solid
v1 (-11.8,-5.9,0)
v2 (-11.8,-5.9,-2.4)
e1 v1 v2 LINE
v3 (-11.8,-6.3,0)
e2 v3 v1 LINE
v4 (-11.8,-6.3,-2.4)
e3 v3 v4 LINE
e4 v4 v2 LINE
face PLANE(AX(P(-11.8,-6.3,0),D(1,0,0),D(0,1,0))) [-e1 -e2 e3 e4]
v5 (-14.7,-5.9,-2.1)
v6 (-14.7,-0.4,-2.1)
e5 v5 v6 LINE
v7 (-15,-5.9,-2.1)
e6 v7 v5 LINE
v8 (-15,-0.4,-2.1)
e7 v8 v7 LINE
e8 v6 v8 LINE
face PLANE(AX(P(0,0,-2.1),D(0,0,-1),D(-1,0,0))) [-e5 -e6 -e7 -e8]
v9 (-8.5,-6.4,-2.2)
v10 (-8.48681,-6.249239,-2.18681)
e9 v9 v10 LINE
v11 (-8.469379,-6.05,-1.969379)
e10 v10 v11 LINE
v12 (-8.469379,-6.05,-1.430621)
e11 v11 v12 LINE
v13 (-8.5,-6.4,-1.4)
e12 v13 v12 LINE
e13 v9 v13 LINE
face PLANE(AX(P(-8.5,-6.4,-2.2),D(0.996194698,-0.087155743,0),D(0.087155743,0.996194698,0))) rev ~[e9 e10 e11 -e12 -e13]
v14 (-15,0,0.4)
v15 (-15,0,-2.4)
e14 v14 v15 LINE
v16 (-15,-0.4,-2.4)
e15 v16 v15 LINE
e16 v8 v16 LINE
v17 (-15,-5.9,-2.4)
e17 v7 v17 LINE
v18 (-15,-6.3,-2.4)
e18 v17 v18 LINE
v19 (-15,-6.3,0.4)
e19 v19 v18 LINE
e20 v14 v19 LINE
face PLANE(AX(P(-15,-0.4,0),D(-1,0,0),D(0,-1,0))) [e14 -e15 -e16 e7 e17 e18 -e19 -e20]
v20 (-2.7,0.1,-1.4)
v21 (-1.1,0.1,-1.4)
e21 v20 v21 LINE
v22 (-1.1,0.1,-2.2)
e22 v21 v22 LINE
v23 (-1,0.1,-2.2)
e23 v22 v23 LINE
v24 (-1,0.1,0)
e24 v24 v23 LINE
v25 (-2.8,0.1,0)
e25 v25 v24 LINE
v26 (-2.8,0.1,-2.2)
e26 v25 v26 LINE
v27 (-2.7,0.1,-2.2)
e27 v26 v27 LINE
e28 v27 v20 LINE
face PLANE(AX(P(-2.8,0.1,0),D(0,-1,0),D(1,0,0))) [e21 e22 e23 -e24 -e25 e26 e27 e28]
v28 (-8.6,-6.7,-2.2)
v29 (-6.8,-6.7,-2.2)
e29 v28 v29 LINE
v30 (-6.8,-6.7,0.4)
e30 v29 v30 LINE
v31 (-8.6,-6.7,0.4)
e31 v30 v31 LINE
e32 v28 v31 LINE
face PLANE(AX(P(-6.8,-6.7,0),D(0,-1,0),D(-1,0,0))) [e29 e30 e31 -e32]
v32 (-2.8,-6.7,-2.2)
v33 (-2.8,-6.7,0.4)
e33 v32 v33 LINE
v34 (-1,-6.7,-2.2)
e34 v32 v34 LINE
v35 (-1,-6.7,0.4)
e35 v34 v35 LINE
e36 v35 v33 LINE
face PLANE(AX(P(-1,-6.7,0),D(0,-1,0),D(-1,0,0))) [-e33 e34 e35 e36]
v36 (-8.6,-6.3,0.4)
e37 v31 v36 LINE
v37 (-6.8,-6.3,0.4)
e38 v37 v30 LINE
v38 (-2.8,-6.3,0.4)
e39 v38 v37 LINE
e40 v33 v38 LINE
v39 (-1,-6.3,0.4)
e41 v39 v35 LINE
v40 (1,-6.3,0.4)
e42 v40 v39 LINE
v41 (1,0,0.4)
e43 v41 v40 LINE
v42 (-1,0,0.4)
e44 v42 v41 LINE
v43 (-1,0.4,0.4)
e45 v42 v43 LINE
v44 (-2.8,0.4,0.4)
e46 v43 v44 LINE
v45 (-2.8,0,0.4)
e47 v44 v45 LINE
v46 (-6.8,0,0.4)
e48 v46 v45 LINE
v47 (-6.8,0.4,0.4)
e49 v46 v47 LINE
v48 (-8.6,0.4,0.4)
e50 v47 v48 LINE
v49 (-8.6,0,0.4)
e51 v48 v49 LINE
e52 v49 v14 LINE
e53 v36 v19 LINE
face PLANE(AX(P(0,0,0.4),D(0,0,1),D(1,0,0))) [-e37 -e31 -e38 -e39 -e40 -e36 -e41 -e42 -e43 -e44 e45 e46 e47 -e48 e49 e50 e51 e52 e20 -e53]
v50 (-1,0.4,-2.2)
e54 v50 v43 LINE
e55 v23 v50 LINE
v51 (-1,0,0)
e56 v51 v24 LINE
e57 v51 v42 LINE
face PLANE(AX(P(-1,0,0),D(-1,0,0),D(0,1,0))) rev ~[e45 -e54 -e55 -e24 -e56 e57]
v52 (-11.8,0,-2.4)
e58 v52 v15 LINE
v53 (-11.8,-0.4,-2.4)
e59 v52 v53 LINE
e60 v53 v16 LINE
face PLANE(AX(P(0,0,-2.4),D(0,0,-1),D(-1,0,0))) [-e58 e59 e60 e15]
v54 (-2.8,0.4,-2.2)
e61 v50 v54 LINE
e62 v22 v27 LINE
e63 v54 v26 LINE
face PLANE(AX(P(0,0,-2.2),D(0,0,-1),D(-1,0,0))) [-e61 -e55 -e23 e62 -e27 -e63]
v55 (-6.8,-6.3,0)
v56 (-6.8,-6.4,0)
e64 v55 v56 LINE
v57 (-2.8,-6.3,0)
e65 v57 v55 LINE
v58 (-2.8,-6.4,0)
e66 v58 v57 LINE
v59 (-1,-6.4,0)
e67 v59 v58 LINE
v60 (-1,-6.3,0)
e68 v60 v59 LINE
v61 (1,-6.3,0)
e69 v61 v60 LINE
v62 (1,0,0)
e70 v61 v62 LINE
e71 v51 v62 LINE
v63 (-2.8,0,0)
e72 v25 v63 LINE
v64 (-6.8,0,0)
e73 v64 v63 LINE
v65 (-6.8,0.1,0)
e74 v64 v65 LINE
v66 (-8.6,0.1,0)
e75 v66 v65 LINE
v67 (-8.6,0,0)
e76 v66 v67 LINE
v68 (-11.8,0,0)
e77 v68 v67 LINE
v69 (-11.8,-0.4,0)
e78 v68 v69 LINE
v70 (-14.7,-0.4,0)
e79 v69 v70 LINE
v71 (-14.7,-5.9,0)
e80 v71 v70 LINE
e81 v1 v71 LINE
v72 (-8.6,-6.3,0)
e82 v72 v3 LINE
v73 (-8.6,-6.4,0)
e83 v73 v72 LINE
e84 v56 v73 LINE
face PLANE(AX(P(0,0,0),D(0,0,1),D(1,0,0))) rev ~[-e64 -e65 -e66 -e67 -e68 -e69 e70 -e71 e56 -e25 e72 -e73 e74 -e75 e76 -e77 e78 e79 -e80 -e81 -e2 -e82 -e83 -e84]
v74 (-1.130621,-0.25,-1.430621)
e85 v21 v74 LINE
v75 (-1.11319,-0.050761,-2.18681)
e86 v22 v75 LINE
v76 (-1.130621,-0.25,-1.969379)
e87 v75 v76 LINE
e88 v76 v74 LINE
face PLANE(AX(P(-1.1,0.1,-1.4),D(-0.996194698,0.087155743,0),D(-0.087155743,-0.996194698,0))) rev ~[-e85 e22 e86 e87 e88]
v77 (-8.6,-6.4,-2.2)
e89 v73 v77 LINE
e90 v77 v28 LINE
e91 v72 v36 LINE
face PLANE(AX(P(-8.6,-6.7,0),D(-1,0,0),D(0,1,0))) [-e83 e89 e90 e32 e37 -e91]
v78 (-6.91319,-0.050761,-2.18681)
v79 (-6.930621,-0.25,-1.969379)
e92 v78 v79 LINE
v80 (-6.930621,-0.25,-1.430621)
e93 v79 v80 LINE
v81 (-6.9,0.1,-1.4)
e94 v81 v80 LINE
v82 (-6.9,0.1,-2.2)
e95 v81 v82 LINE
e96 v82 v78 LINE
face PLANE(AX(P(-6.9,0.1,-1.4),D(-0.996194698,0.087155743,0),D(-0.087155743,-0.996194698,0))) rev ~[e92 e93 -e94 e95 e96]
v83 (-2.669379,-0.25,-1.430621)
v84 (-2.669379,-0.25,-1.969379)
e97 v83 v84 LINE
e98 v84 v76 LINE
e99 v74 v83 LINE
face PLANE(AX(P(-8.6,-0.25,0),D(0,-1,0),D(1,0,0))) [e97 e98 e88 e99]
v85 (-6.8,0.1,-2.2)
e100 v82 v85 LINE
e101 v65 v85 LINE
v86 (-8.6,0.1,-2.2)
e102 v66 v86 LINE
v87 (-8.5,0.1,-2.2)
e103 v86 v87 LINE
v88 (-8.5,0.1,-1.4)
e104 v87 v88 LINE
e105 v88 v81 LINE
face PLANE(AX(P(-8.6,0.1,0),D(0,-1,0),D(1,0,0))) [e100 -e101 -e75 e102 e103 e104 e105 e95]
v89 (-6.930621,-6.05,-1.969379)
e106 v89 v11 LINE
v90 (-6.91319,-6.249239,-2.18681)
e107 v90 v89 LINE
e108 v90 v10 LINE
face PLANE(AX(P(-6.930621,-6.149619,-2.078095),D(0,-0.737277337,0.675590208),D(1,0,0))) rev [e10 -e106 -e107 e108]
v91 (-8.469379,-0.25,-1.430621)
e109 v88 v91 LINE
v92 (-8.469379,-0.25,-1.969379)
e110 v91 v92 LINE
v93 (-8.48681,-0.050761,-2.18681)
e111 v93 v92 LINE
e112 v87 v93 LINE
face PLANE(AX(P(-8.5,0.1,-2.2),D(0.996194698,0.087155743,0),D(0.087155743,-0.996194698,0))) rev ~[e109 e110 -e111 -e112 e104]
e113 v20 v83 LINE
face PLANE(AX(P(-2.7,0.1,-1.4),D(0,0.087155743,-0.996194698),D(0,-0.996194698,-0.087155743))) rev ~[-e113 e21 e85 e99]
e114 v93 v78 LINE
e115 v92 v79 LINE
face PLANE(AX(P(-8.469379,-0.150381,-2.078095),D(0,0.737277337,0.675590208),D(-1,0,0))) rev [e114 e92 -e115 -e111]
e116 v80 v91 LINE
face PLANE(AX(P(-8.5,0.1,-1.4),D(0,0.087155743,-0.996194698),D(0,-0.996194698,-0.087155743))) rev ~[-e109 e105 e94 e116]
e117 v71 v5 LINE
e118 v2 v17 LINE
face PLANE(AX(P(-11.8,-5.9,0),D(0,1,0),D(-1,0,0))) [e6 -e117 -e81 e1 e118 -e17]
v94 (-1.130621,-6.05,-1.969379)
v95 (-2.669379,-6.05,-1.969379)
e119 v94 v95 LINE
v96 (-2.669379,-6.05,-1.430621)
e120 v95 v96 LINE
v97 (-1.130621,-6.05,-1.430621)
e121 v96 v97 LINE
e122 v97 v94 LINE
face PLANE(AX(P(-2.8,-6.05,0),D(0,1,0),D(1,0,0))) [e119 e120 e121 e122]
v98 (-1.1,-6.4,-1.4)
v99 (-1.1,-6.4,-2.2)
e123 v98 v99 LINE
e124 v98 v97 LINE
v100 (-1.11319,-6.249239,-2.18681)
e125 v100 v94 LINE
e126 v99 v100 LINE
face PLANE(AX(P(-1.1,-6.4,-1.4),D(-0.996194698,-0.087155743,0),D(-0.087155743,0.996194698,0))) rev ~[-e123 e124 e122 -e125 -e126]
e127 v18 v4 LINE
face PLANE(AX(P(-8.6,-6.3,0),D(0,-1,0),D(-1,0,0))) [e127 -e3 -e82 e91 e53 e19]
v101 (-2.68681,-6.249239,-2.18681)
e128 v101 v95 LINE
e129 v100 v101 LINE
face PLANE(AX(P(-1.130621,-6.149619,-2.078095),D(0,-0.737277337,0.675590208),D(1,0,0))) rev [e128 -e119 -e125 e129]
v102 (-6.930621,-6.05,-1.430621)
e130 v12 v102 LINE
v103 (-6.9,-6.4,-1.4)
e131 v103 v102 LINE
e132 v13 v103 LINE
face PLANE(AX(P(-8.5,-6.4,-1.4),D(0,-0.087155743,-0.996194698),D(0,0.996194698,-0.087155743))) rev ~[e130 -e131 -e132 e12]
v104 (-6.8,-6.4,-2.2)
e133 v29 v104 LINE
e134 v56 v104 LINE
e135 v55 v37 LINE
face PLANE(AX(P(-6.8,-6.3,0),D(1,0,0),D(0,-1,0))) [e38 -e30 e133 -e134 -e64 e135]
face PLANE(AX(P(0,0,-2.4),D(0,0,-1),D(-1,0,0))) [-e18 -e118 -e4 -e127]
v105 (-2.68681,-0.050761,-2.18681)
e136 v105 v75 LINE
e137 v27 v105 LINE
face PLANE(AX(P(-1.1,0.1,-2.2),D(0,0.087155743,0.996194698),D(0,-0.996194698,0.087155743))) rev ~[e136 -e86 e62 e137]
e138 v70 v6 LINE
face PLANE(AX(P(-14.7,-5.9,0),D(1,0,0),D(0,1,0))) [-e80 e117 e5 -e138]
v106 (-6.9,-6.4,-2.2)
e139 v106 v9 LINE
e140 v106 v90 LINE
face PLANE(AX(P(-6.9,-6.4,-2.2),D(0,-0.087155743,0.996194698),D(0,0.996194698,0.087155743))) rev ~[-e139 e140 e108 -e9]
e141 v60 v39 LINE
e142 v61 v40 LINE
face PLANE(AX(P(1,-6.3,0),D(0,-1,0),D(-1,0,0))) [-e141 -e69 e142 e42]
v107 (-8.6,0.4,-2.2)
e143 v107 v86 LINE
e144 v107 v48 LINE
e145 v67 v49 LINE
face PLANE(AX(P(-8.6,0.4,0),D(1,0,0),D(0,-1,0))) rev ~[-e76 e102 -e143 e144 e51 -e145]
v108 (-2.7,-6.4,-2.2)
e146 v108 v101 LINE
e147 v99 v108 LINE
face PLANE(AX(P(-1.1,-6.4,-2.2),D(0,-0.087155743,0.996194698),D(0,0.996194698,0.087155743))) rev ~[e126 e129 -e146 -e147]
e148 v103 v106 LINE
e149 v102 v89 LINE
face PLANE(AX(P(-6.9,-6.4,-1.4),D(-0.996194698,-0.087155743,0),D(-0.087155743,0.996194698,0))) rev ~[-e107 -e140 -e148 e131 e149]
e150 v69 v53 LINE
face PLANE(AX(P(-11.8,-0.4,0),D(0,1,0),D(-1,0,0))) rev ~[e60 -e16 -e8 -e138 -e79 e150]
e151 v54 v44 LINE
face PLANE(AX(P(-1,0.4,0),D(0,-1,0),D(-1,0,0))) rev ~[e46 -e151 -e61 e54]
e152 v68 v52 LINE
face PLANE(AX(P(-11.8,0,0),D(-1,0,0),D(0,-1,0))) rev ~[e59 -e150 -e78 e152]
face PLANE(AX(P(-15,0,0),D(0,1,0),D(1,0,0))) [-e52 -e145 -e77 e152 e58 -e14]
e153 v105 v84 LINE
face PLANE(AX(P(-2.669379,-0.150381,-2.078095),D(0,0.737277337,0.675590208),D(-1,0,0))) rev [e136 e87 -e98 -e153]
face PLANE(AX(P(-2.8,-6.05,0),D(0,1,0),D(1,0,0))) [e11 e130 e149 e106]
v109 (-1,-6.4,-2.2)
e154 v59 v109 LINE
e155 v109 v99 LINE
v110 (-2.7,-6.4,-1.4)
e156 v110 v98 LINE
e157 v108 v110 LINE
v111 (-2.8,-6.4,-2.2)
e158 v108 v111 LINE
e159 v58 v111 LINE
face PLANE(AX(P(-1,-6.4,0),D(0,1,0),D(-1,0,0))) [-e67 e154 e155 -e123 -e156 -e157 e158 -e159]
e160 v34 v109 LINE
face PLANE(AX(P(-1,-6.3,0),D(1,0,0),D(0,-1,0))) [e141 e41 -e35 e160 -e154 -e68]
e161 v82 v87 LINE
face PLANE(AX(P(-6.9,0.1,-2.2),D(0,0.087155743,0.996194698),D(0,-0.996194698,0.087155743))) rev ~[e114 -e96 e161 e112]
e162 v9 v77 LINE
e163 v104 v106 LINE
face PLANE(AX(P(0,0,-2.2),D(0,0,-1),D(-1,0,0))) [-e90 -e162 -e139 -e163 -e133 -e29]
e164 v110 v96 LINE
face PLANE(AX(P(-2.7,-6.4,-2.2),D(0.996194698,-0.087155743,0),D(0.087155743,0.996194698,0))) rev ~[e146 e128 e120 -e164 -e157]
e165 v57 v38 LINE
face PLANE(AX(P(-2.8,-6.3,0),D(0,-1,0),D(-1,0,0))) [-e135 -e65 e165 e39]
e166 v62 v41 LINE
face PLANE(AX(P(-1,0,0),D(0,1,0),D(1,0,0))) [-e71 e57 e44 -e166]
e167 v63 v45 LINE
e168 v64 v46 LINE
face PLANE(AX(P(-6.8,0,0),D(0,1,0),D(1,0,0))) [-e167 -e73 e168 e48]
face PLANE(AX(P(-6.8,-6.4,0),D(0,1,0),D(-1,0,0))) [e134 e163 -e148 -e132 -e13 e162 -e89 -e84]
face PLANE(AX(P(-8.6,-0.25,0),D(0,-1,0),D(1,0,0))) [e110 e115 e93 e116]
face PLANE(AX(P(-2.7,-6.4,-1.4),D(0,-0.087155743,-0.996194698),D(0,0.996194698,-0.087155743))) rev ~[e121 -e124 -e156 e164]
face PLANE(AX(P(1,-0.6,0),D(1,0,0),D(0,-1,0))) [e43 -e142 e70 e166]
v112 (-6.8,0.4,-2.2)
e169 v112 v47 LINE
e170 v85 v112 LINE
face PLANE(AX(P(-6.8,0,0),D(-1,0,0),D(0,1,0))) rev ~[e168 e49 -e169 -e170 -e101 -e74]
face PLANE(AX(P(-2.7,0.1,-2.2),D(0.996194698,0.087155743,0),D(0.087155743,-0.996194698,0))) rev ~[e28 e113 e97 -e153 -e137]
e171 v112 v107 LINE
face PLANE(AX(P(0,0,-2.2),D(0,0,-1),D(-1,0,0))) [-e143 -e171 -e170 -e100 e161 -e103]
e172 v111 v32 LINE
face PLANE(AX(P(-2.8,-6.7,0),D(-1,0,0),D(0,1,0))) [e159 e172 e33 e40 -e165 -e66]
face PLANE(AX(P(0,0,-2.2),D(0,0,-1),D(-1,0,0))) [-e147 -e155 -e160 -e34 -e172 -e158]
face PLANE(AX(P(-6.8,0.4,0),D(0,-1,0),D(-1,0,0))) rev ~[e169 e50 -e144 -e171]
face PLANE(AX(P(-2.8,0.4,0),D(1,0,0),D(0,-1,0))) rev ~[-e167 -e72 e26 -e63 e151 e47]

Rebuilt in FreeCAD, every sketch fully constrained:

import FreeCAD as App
import Part
import Sketcher


def edges_at(feature, points):
    """Names of the edges that pass closest to the given points."""
    edges = feature.Shape.Edges
    near = lambda p: min(range(len(edges)), key=lambda i: edges[i].distToShape(Part.Vertex(*p))[0])
    return sorted({f"Edge{near(p) + 1}" for p in points})

doc = App.newDocument("Part")
params = doc.addObject("Spreadsheet::Sheet", "Params")
for row, (alias, value) in enumerate([
    ("sketch1_height", "0.4 mm"),
    ("sketch1_width", "2 mm"),
    ("sketch1_width2", "4 mm"),
    ("sketch1_width3", "1.8 mm"),
    ("sketch1_width4", "6.4 mm"),
    ("pad1_length", "0.4 mm"),
    ("sketch2_width", "1.8 mm"),
    ("sketch2_height", "0.3 mm"),
    ("pad2_length", "2.2 mm"),
    ("sketch3_width", "1.6 mm"),
    ("sketch3_height", "0.8 mm"),
    ("pad3_length", "0.35 mm"),
    ("pad3_taper", "-5 deg"),
    ("sketch4_width", "1.6 mm"),
    ("sketch4_height", "0.8 mm"),
    ("pad4_length", "0.35 mm"),
    ("pad4_taper", "-5 deg"),
    ("chamfer_size", "0.2 mm"),
    ("sketch5_width", "3.2 mm"),
    ("sketch5_height", "0.4 mm"),
    ("pad5_length", "2.4 mm"),
    ("sketch6_width", "0.3 mm"),
    ("sketch6_height", "5.5 mm"),
    ("pad6_length", "2.1 mm"),
], start=1):
    params.set(f"A{row}", alias)
    params.set(f"B{row}", "=" + value)
    params.setAlias(f"B{row}", alias)

body = doc.addObject("PartDesign::Body", "Body")

sketch1 = doc.addObject("Sketcher::SketchObject", "Sketch")
body.addObject(sketch1)
sketch1.AttachmentSupport = (doc.XY_Plane, [""])
sketch1.MapMode = "FlatFace"
sketch1.addGeometry(Part.LineSegment(App.Vector(1, 0, 0), App.Vector(-1, 0, 0)), False)
sketch1.addGeometry(Part.LineSegment(App.Vector(-1, 0, 0), App.Vector(-1, 0.4, 0)), False)
sketch1.addGeometry(Part.LineSegment(App.Vector(-1, 0.4, 0), App.Vector(-2.8, 0.4, 0)), False)
sketch1.addGeometry(Part.LineSegment(App.Vector(-2.8, 0.4, 0), App.Vector(-2.8, 0, 0)), False)
sketch1.addGeometry(Part.LineSegment(App.Vector(-2.8, 0, 0), App.Vector(-6.8, 0, 0)), False)
sketch1.addGeometry(Part.LineSegment(App.Vector(-6.8, 0, 0), App.Vector(-6.8, 0.4, 0)), False)
sketch1.addGeometry(Part.LineSegment(App.Vector(-6.8, 0.4, 0), App.Vector(-8.6, 0.4, 0)), False)
sketch1.addGeometry(Part.LineSegment(App.Vector(-8.6, 0.4, 0), App.Vector(-8.6, 0, 0)), False)
sketch1.addGeometry(Part.LineSegment(App.Vector(-8.6, 0, 0), App.Vector(-15, 0, 0)), False)
sketch1.addGeometry(Part.LineSegment(App.Vector(-15, 0, 0), App.Vector(-15, -6.3, 0)), False)
sketch1.addGeometry(Part.LineSegment(App.Vector(-15, -6.3, 0), App.Vector(-8.6, -6.3, 0)), False)
sketch1.addGeometry(Part.LineSegment(App.Vector(-8.6, -6.3, 0), App.Vector(-8.6, -6.7, 0)), False)
sketch1.addGeometry(Part.LineSegment(App.Vector(-8.6, -6.7, 0), App.Vector(-6.8, -6.7, 0)), False)
sketch1.addGeometry(Part.LineSegment(App.Vector(-6.8, -6.7, 0), App.Vector(-6.8, -6.3, 0)), False)
sketch1.addGeometry(Part.LineSegment(App.Vector(-6.8, -6.3, 0), App.Vector(-2.8, -6.3, 0)), False)
sketch1.addGeometry(Part.LineSegment(App.Vector(-2.8, -6.3, 0), App.Vector(-2.8, -6.7, 0)), False)
sketch1.addGeometry(Part.LineSegment(App.Vector(-2.8, -6.7, 0), App.Vector(-1, -6.7, 0)), False)
sketch1.addGeometry(Part.LineSegment(App.Vector(-1, -6.7, 0), App.Vector(-1, -6.3, 0)), False)
sketch1.addGeometry(Part.LineSegment(App.Vector(-1, -6.3, 0), App.Vector(1, -6.3, 0)), False)
sketch1.addGeometry(Part.LineSegment(App.Vector(1, -6.3, 0), App.Vector(1, 0, 0)), False)
sketch1.addConstraint(Sketcher.Constraint("Coincident", 0, 2, 1, 1))
sketch1.addConstraint(Sketcher.Constraint("Coincident", 1, 2, 2, 1))
sketch1.addConstraint(Sketcher.Constraint("Coincident", 2, 2, 3, 1))
sketch1.addConstraint(Sketcher.Constraint("Coincident", 3, 2, 4, 1))
sketch1.addConstraint(Sketcher.Constraint("Coincident", 4, 2, 5, 1))
sketch1.addConstraint(Sketcher.Constraint("Coincident", 5, 2, 6, 1))
sketch1.addConstraint(Sketcher.Constraint("Coincident", 6, 2, 7, 1))
sketch1.addConstraint(Sketcher.Constraint("Coincident", 7, 2, 8, 1))
sketch1.addConstraint(Sketcher.Constraint("Coincident", 8, 2, 9, 1))
sketch1.addConstraint(Sketcher.Constraint("Coincident", 9, 2, 10, 1))
sketch1.addConstraint(Sketcher.Constraint("Coincident", 10, 2, 11, 1))
sketch1.addConstraint(Sketcher.Constraint("Coincident", 11, 2, 12, 1))
sketch1.addConstraint(Sketcher.Constraint("Coincident", 12, 2, 13, 1))
sketch1.addConstraint(Sketcher.Constraint("Coincident", 13, 2, 14, 1))
sketch1.addConstraint(Sketcher.Constraint("Coincident", 14, 2, 15, 1))
sketch1.addConstraint(Sketcher.Constraint("Coincident", 15, 2, 16, 1))
sketch1.addConstraint(Sketcher.Constraint("Coincident", 16, 2, 17, 1))
sketch1.addConstraint(Sketcher.Constraint("Coincident", 17, 2, 18, 1))
sketch1.addConstraint(Sketcher.Constraint("Coincident", 18, 2, 19, 1))
sketch1.addConstraint(Sketcher.Constraint("Coincident", 19, 2, 0, 1))
sketch1.addConstraint(Sketcher.Constraint("Horizontal", 0))
sketch1.addConstraint(Sketcher.Constraint("Vertical", 1))
sketch1.addConstraint(Sketcher.Constraint("Horizontal", 2))
sketch1.addConstraint(Sketcher.Constraint("Vertical", 3))
sketch1.addConstraint(Sketcher.Constraint("Horizontal", 4))
sketch1.addConstraint(Sketcher.Constraint("Vertical", 5))
sketch1.addConstraint(Sketcher.Constraint("Horizontal", 6))
sketch1.addConstraint(Sketcher.Constraint("Vertical", 7))
sketch1.addConstraint(Sketcher.Constraint("Horizontal", 8))
sketch1.addConstraint(Sketcher.Constraint("Vertical", 9))
sketch1.addConstraint(Sketcher.Constraint("Horizontal", 10))
sketch1.addConstraint(Sketcher.Constraint("Vertical", 11))
sketch1.addConstraint(Sketcher.Constraint("Horizontal", 12))
sketch1.addConstraint(Sketcher.Constraint("Vertical", 13))
sketch1.addConstraint(Sketcher.Constraint("Horizontal", 14))
sketch1.addConstraint(Sketcher.Constraint("Vertical", 15))
sketch1.addConstraint(Sketcher.Constraint("Horizontal", 16))
sketch1.addConstraint(Sketcher.Constraint("Vertical", 17))
sketch1.addConstraint(Sketcher.Constraint("Horizontal", 18))
sketch1.addConstraint(Sketcher.Constraint("Vertical", 19))
sketch1.addConstraint(Sketcher.Constraint("Symmetric", 0, 2, 19, 2, -1, 1))
sketch1.addConstraint(Sketcher.Constraint("PointOnObject", 3, 2, -1))
sketch1.addConstraint(Sketcher.Constraint("PointOnObject", 7, 2, -1))
sketch1.addConstraint(Sketcher.Constraint("Horizontal", 2, 2, 5, 2))
sketch1.addConstraint(Sketcher.Constraint("Horizontal", 10, 2, 13, 2))
sketch1.addConstraint(Sketcher.Constraint("Horizontal", 12, 2, 15, 2))
sketch1.addConstraint(Sketcher.Constraint("Horizontal", 14, 2, 17, 2))
sketch1.addConstraint(Sketcher.Constraint("Vertical", 7, 2, 10, 2))
sketch1.addConstraint(Sketcher.Constraint("Vertical", 5, 2, 12, 2))
sketch1.addConstraint(Sketcher.Constraint("Vertical", 3, 2, 14, 2))
sketch1.addConstraint(Sketcher.Constraint("Vertical", 1, 2, 16, 2))
sketch1.addConstraint(Sketcher.Constraint("Equal", 2, 6))
sketch1.addConstraint(Sketcher.Constraint("Equal", 7, 11))
sketch1.addConstraint(Sketcher.Constraint("DistanceY", 1, 1, 1, 2, 0.4))
sketch1.addConstraint(Sketcher.Constraint("DistanceX", 0, 2, 0, 1, 2.0))
sketch1.addConstraint(Sketcher.Constraint("DistanceX", 4, 2, 4, 1, 4.0))
sketch1.addConstraint(Sketcher.Constraint("DistanceX", 2, 2, 2, 1, 1.8))
sketch1.addConstraint(Sketcher.Constraint("DistanceX", 8, 2, 8, 1, 6.4))
sketch1.addConstraint(Sketcher.Constraint("DistanceY", 9, 2, 9, 1, 6.3))
sketch1.setExpression("Constraints[53]", "Params.sketch1_height")
sketch1.setExpression("Constraints[54]", "Params.sketch1_width")
sketch1.setExpression("Constraints[55]", "Params.sketch1_width2")
sketch1.setExpression("Constraints[56]", "Params.sketch1_width3")
sketch1.setExpression("Constraints[57]", "Params.sketch1_width4")
pad1 = doc.addObject("PartDesign::Pad", "Pad")
body.addObject(pad1)
pad1.Profile = sketch1
pad1.setExpression("Length", "Params.pad1_length")

sketch2 = doc.addObject("Sketcher::SketchObject", "Sketch001")
body.addObject(sketch2)
sketch2.AttachmentSupport = (doc.XY_Plane, [""])
sketch2.MapMode = "FlatFace"
sketch2.addGeometry(Part.LineSegment(App.Vector(-2.8, -6.7, 0), App.Vector(-2.8, -6.4, 0)), False)
sketch2.addGeometry(Part.LineSegment(App.Vector(-2.8, -6.4, 0), App.Vector(-1, -6.4, 0)), False)
sketch2.addGeometry(Part.LineSegment(App.Vector(-1, -6.4, 0), App.Vector(-1, -6.7, 0)), False)
sketch2.addGeometry(Part.LineSegment(App.Vector(-1, -6.7, 0), App.Vector(-2.8, -6.7, 0)), False)
sketch2.addGeometry(Part.LineSegment(App.Vector(-6.8, -6.7, 0), App.Vector(-8.6, -6.7, 0)), False)
sketch2.addGeometry(Part.LineSegment(App.Vector(-8.6, -6.7, 0), App.Vector(-8.6, -6.4, 0)), False)
sketch2.addGeometry(Part.LineSegment(App.Vector(-8.6, -6.4, 0), App.Vector(-6.8, -6.4, 0)), False)
sketch2.addGeometry(Part.LineSegment(App.Vector(-6.8, -6.4, 0), App.Vector(-6.8, -6.7, 0)), False)
sketch2.addGeometry(Part.LineSegment(App.Vector(-1, 0.4, 0), App.Vector(-1, 0.1, 0)), False)
sketch2.addGeometry(Part.LineSegment(App.Vector(-1, 0.1, 0), App.Vector(-2.8, 0.1, 0)), False)
sketch2.addGeometry(Part.LineSegment(App.Vector(-2.8, 0.1, 0), App.Vector(-2.8, 0.4, 0)), False)
sketch2.addGeometry(Part.LineSegment(App.Vector(-2.8, 0.4, 0), App.Vector(-1, 0.4, 0)), False)
sketch2.addGeometry(Part.LineSegment(App.Vector(-8.6, 0.4, 0), App.Vector(-6.8, 0.4, 0)), False)
sketch2.addGeometry(Part.LineSegment(App.Vector(-6.8, 0.4, 0), App.Vector(-6.8, 0.1, 0)), False)
sketch2.addGeometry(Part.LineSegment(App.Vector(-6.8, 0.1, 0), App.Vector(-8.6, 0.1, 0)), False)
sketch2.addGeometry(Part.LineSegment(App.Vector(-8.6, 0.1, 0), App.Vector(-8.6, 0.4, 0)), False)
sketch2.addConstraint(Sketcher.Constraint("Coincident", 0, 2, 1, 1))
sketch2.addConstraint(Sketcher.Constraint("Coincident", 1, 2, 2, 1))
sketch2.addConstraint(Sketcher.Constraint("Coincident", 2, 2, 3, 1))
sketch2.addConstraint(Sketcher.Constraint("Coincident", 3, 2, 0, 1))
sketch2.addConstraint(Sketcher.Constraint("Coincident", 4, 2, 5, 1))
sketch2.addConstraint(Sketcher.Constraint("Coincident", 5, 2, 6, 1))
sketch2.addConstraint(Sketcher.Constraint("Coincident", 6, 2, 7, 1))
sketch2.addConstraint(Sketcher.Constraint("Coincident", 7, 2, 4, 1))
sketch2.addConstraint(Sketcher.Constraint("Coincident", 8, 2, 9, 1))
sketch2.addConstraint(Sketcher.Constraint("Coincident", 9, 2, 10, 1))
sketch2.addConstraint(Sketcher.Constraint("Coincident", 10, 2, 11, 1))
sketch2.addConstraint(Sketcher.Constraint("Coincident", 11, 2, 8, 1))
sketch2.addConstraint(Sketcher.Constraint("Coincident", 12, 2, 13, 1))
sketch2.addConstraint(Sketcher.Constraint("Coincident", 13, 2, 14, 1))
sketch2.addConstraint(Sketcher.Constraint("Coincident", 14, 2, 15, 1))
sketch2.addConstraint(Sketcher.Constraint("Coincident", 15, 2, 12, 1))
sketch2.addConstraint(Sketcher.Constraint("Vertical", 0))
sketch2.addConstraint(Sketcher.Constraint("Horizontal", 1))
sketch2.addConstraint(Sketcher.Constraint("Vertical", 2))
sketch2.addConstraint(Sketcher.Constraint("Horizontal", 3))
sketch2.addConstraint(Sketcher.Constraint("Horizontal", 4))
sketch2.addConstraint(Sketcher.Constraint("Vertical", 5))
sketch2.addConstraint(Sketcher.Constraint("Horizontal", 6))
sketch2.addConstraint(Sketcher.Constraint("Vertical", 7))
sketch2.addConstraint(Sketcher.Constraint("Vertical", 8))
sketch2.addConstraint(Sketcher.Constraint("Horizontal", 9))
sketch2.addConstraint(Sketcher.Constraint("Vertical", 10))
sketch2.addConstraint(Sketcher.Constraint("Horizontal", 11))
sketch2.addConstraint(Sketcher.Constraint("Horizontal", 12))
sketch2.addConstraint(Sketcher.Constraint("Vertical", 13))
sketch2.addConstraint(Sketcher.Constraint("Horizontal", 14))
sketch2.addConstraint(Sketcher.Constraint("Vertical", 15))
sketch2.addConstraint(Sketcher.Constraint("Horizontal", 3, 2, 4, 2))
sketch2.addConstraint(Sketcher.Constraint("Horizontal", 1, 2, 5, 2))
sketch2.addConstraint(Sketcher.Constraint("Horizontal", 11, 2, 12, 2))
sketch2.addConstraint(Sketcher.Constraint("Horizontal", 9, 2, 13, 2))
sketch2.addConstraint(Sketcher.Constraint("Vertical", 2, 2, 8, 2))
sketch2.addConstraint(Sketcher.Constraint("Vertical", 3, 2, 9, 2))
sketch2.addConstraint(Sketcher.Constraint("Vertical", 7, 2, 12, 2))
sketch2.addConstraint(Sketcher.Constraint("Vertical", 5, 2, 14, 2))
sketch2.addConstraint(Sketcher.Constraint("Equal", 3, 4))
sketch2.addConstraint(Sketcher.Constraint("Equal", 7, 8))
sketch2.addConstraint(Sketcher.Constraint("DistanceY", -1, 1, 8, 2, 0.1))
sketch2.addConstraint(Sketcher.Constraint("DistanceX", 1, 1, 1, 2, 1.8))
sketch2.addConstraint(Sketcher.Constraint("DistanceY", 0, 1, 0, 2, 0.3))
sketch2.addConstraint(Sketcher.Constraint("DistanceX", 1, 2, -1, 1, 1.0))
sketch2.addConstraint(Sketcher.Constraint("DistanceX", 6, 2, 0, 2, 4.0))
sketch2.addConstraint(Sketcher.Constraint("DistanceY", 0, 2, -1, 1, 6.4))
sketch2.setExpression("Constraints[43]", "Params.sketch2_width")
sketch2.setExpression("Constraints[44]", "Params.sketch2_height")
pad2 = doc.addObject("PartDesign::Pad", "Pad001")
body.addObject(pad2)
pad2.Profile = sketch2
pad2.setExpression("Length", "Params.pad2_length")
pad2.Reversed = True

sketch3 = doc.addObject("Sketcher::SketchObject", "Sketch002")
body.addObject(sketch3)
sketch3.AttachmentSupport = (doc.XZ_Plane, [""])
sketch3.MapMode = "FlatFace"
sketch3.AttachmentOffset = App.Placement(App.Vector(0, 0, -0.1), App.Rotation())
sketch3.addGeometry(Part.LineSegment(App.Vector(-6.9, -1.4, 0), App.Vector(-8.5, -1.4, 0)), False)
sketch3.addGeometry(Part.LineSegment(App.Vector(-8.5, -1.4, 0), App.Vector(-8.5, -2.2, 0)), False)
sketch3.addGeometry(Part.LineSegment(App.Vector(-8.5, -2.2, 0), App.Vector(-6.9, -2.2, 0)), False)
sketch3.addGeometry(Part.LineSegment(App.Vector(-6.9, -2.2, 0), App.Vector(-6.9, -1.4, 0)), False)
sketch3.addGeometry(Part.LineSegment(App.Vector(-1.1, -1.4, 0), App.Vector(-2.7, -1.4, 0)), False)
sketch3.addGeometry(Part.LineSegment(App.Vector(-2.7, -1.4, 0), App.Vector(-2.7, -2.2, 0)), False)
sketch3.addGeometry(Part.LineSegment(App.Vector(-2.7, -2.2, 0), App.Vector(-1.1, -2.2, 0)), False)
sketch3.addGeometry(Part.LineSegment(App.Vector(-1.1, -2.2, 0), App.Vector(-1.1, -1.4, 0)), False)
sketch3.addConstraint(Sketcher.Constraint("Coincident", 0, 2, 1, 1))
sketch3.addConstraint(Sketcher.Constraint("Coincident", 1, 2, 2, 1))
sketch3.addConstraint(Sketcher.Constraint("Coincident", 2, 2, 3, 1))
sketch3.addConstraint(Sketcher.Constraint("Coincident", 3, 2, 0, 1))
sketch3.addConstraint(Sketcher.Constraint("Coincident", 4, 2, 5, 1))
sketch3.addConstraint(Sketcher.Constraint("Coincident", 5, 2, 6, 1))
sketch3.addConstraint(Sketcher.Constraint("Coincident", 6, 2, 7, 1))
sketch3.addConstraint(Sketcher.Constraint("Coincident", 7, 2, 4, 1))
sketch3.addConstraint(Sketcher.Constraint("Horizontal", 0))
sketch3.addConstraint(Sketcher.Constraint("Vertical", 1))
sketch3.addConstraint(Sketcher.Constraint("Horizontal", 2))
sketch3.addConstraint(Sketcher.Constraint("Vertical", 3))
sketch3.addConstraint(Sketcher.Constraint("Horizontal", 4))
sketch3.addConstraint(Sketcher.Constraint("Vertical", 5))
sketch3.addConstraint(Sketcher.Constraint("Horizontal", 6))
sketch3.addConstraint(Sketcher.Constraint("Vertical", 7))
sketch3.addConstraint(Sketcher.Constraint("Horizontal", 3, 2, 4, 2))
sketch3.addConstraint(Sketcher.Constraint("Horizontal", 2, 2, 5, 2))
sketch3.addConstraint(Sketcher.Constraint("Equal", 2, 4))
sketch3.addConstraint(Sketcher.Constraint("DistanceX", 0, 2, 0, 1, 1.6))
sketch3.addConstraint(Sketcher.Constraint("DistanceY", 1, 2, 1, 1, 0.8))
sketch3.addConstraint(Sketcher.Constraint("DistanceX", 0, 2, -1, 1, 8.5))
sketch3.addConstraint(Sketcher.Constraint("DistanceY", 0, 2, -1, 1, 1.4))
sketch3.addConstraint(Sketcher.Constraint("DistanceX", 4, 2, -1, 1, 2.7))
sketch3.setExpression("Constraints[19]", "Params.sketch3_width")
sketch3.setExpression("Constraints[20]", "Params.sketch3_height")
pad3 = doc.addObject("PartDesign::Pad", "Pad002")
body.addObject(pad3)
pad3.Profile = sketch3
pad3.setExpression("Length", "Params.pad3_length")
pad3.setExpression("TaperAngle", "Params.pad3_taper")

sketch4 = doc.addObject("Sketcher::SketchObject", "Sketch003")
body.addObject(sketch4)
sketch4.AttachmentSupport = (doc.XZ_Plane, [""])
sketch4.MapMode = "FlatFace"
sketch4.AttachmentOffset = App.Placement(App.Vector(0, 0, 6.4), App.Rotation())
sketch4.addGeometry(Part.LineSegment(App.Vector(-6.9, -1.4, 0), App.Vector(-6.9, -2.2, 0)), False)
sketch4.addGeometry(Part.LineSegment(App.Vector(-6.9, -2.2, 0), App.Vector(-8.5, -2.2, 0)), False)
sketch4.addGeometry(Part.LineSegment(App.Vector(-8.5, -2.2, 0), App.Vector(-8.5, -1.4, 0)), False)
sketch4.addGeometry(Part.LineSegment(App.Vector(-8.5, -1.4, 0), App.Vector(-6.9, -1.4, 0)), False)
sketch4.addGeometry(Part.LineSegment(App.Vector(-2.7, -2.2, 0), App.Vector(-2.7, -1.4, 0)), False)
sketch4.addGeometry(Part.LineSegment(App.Vector(-2.7, -1.4, 0), App.Vector(-1.1, -1.4, 0)), False)
sketch4.addGeometry(Part.LineSegment(App.Vector(-1.1, -1.4, 0), App.Vector(-1.1, -2.2, 0)), False)
sketch4.addGeometry(Part.LineSegment(App.Vector(-1.1, -2.2, 0), App.Vector(-2.7, -2.2, 0)), False)
sketch4.addConstraint(Sketcher.Constraint("Coincident", 0, 2, 1, 1))
sketch4.addConstraint(Sketcher.Constraint("Coincident", 1, 2, 2, 1))
sketch4.addConstraint(Sketcher.Constraint("Coincident", 2, 2, 3, 1))
sketch4.addConstraint(Sketcher.Constraint("Coincident", 3, 2, 0, 1))
sketch4.addConstraint(Sketcher.Constraint("Coincident", 4, 2, 5, 1))
sketch4.addConstraint(Sketcher.Constraint("Coincident", 5, 2, 6, 1))
sketch4.addConstraint(Sketcher.Constraint("Coincident", 6, 2, 7, 1))
sketch4.addConstraint(Sketcher.Constraint("Coincident", 7, 2, 4, 1))
sketch4.addConstraint(Sketcher.Constraint("Vertical", 0))
sketch4.addConstraint(Sketcher.Constraint("Horizontal", 1))
sketch4.addConstraint(Sketcher.Constraint("Vertical", 2))
sketch4.addConstraint(Sketcher.Constraint("Horizontal", 3))
sketch4.addConstraint(Sketcher.Constraint("Vertical", 4))
sketch4.addConstraint(Sketcher.Constraint("Horizontal", 5))
sketch4.addConstraint(Sketcher.Constraint("Vertical", 6))
sketch4.addConstraint(Sketcher.Constraint("Horizontal", 7))
sketch4.addConstraint(Sketcher.Constraint("Horizontal", 3, 2, 4, 2))
sketch4.addConstraint(Sketcher.Constraint("Horizontal", 1, 2, 6, 2))
sketch4.addConstraint(Sketcher.Constraint("Equal", 3, 5))
sketch4.addConstraint(Sketcher.Constraint("DistanceX", 1, 2, 1, 1, 1.6))
sketch4.addConstraint(Sketcher.Constraint("DistanceY", 0, 2, 0, 1, 0.8))
sketch4.addConstraint(Sketcher.Constraint("DistanceX", 0, 2, -1, 1, 6.9))
sketch4.addConstraint(Sketcher.Constraint("DistanceY", 0, 2, -1, 1, 2.2))
sketch4.addConstraint(Sketcher.Constraint("DistanceX", 4, 2, -1, 1, 2.7))
sketch4.setExpression("Constraints[19]", "Params.sketch4_width")
sketch4.setExpression("Constraints[20]", "Params.sketch4_height")
pad4 = doc.addObject("PartDesign::Pad", "Pad003")
body.addObject(pad4)
pad4.Profile = sketch4
pad4.setExpression("Length", "Params.pad4_length")
pad4.Reversed = True
pad4.setExpression("TaperAngle", "Params.pad4_taper")
doc.recompute()

chamfer = doc.addObject("PartDesign::Chamfer", "Chamfer")
body.addObject(chamfer)
chamfer.Base = (pad4, edges_at(pad4, [
    (-1.9, -0.25, -2.169),
    (-7.7, -0.25, -2.169),
    (-1.9, -6.05, -2.169),
    (-7.7, -6.05, -2.169),
]))
chamfer.setExpression("Size", "Params.chamfer_size")

sketch5 = doc.addObject("Sketcher::SketchObject", "Sketch004")
body.addObject(sketch5)
sketch5.AttachmentSupport = (doc.XY_Plane, [""])
sketch5.MapMode = "FlatFace"
sketch5.addGeometry(Part.LineSegment(App.Vector(-11.8, -6.3, 0), App.Vector(-15, -6.3, 0)), False)
sketch5.addGeometry(Part.LineSegment(App.Vector(-15, -6.3, 0), App.Vector(-15, -5.9, 0)), False)
sketch5.addGeometry(Part.LineSegment(App.Vector(-15, -5.9, 0), App.Vector(-11.8, -5.9, 0)), False)
sketch5.addGeometry(Part.LineSegment(App.Vector(-11.8, -5.9, 0), App.Vector(-11.8, -6.3, 0)), False)
sketch5.addGeometry(Part.LineSegment(App.Vector(-15, 0, 0), App.Vector(-11.8, 0, 0)), False)
sketch5.addGeometry(Part.LineSegment(App.Vector(-11.8, 0, 0), App.Vector(-11.8, -0.4, 0)), False)
sketch5.addGeometry(Part.LineSegment(App.Vector(-11.8, -0.4, 0), App.Vector(-15, -0.4, 0)), False)
sketch5.addGeometry(Part.LineSegment(App.Vector(-15, -0.4, 0), App.Vector(-15, 0, 0)), False)
sketch5.addConstraint(Sketcher.Constraint("Coincident", 0, 2, 1, 1))
sketch5.addConstraint(Sketcher.Constraint("Coincident", 1, 2, 2, 1))
sketch5.addConstraint(Sketcher.Constraint("Coincident", 2, 2, 3, 1))
sketch5.addConstraint(Sketcher.Constraint("Coincident", 3, 2, 0, 1))
sketch5.addConstraint(Sketcher.Constraint("Coincident", 4, 2, 5, 1))
sketch5.addConstraint(Sketcher.Constraint("Coincident", 5, 2, 6, 1))
sketch5.addConstraint(Sketcher.Constraint("Coincident", 6, 2, 7, 1))
sketch5.addConstraint(Sketcher.Constraint("Coincident", 7, 2, 4, 1))
sketch5.addConstraint(Sketcher.Constraint("Horizontal", 0))
sketch5.addConstraint(Sketcher.Constraint("Vertical", 1))
sketch5.addConstraint(Sketcher.Constraint("Horizontal", 2))
sketch5.addConstraint(Sketcher.Constraint("Vertical", 3))
sketch5.addConstraint(Sketcher.Constraint("Horizontal", 4))
sketch5.addConstraint(Sketcher.Constraint("Vertical", 5))
sketch5.addConstraint(Sketcher.Constraint("Horizontal", 6))
sketch5.addConstraint(Sketcher.Constraint("Vertical", 7))
sketch5.addConstraint(Sketcher.Constraint("PointOnObject", 4, 2, -1))
sketch5.addConstraint(Sketcher.Constraint("Vertical", 3, 2, 4, 2))
sketch5.addConstraint(Sketcher.Constraint("Vertical", 1, 2, 6, 2))
sketch5.addConstraint(Sketcher.Constraint("Equal", 3, 5))
sketch5.addConstraint(Sketcher.Constraint("DistanceX", 0, 2, 0, 1, 3.2))
sketch5.addConstraint(Sketcher.Constraint("DistanceY", 1, 1, 1, 2, 0.4))
sketch5.addConstraint(Sketcher.Constraint("DistanceX", 0, 2, -1, 1, 15.0))
sketch5.addConstraint(Sketcher.Constraint("DistanceY", 0, 2, -1, 1, 6.3))
sketch5.setExpression("Constraints[20]", "Params.sketch5_width")
sketch5.setExpression("Constraints[21]", "Params.sketch5_height")
pad5 = doc.addObject("PartDesign::Pad", "Pad004")
body.addObject(pad5)
pad5.Profile = sketch5
pad5.setExpression("Length", "Params.pad5_length")
pad5.Reversed = True

sketch6 = doc.addObject("Sketcher::SketchObject", "Sketch005")
body.addObject(sketch6)
sketch6.AttachmentSupport = (doc.XY_Plane, [""])
sketch6.MapMode = "FlatFace"
sketch6.addGeometry(Part.LineSegment(App.Vector(-15, -5.9, 0), App.Vector(-15, -0.4, 0)), False)
sketch6.addGeometry(Part.LineSegment(App.Vector(-15, -0.4, 0), App.Vector(-14.7, -0.4, 0)), False)
sketch6.addGeometry(Part.LineSegment(App.Vector(-14.7, -0.4, 0), App.Vector(-14.7, -5.9, 0)), False)
sketch6.addGeometry(Part.LineSegment(App.Vector(-14.7, -5.9, 0), App.Vector(-15, -5.9, 0)), False)
sketch6.addConstraint(Sketcher.Constraint("Coincident", 0, 2, 1, 1))
sketch6.addConstraint(Sketcher.Constraint("Coincident", 1, 2, 2, 1))
sketch6.addConstraint(Sketcher.Constraint("Coincident", 2, 2, 3, 1))
sketch6.addConstraint(Sketcher.Constraint("Coincident", 3, 2, 0, 1))
sketch6.addConstraint(Sketcher.Constraint("Vertical", 0))
sketch6.addConstraint(Sketcher.Constraint("Horizontal", 1))
sketch6.addConstraint(Sketcher.Constraint("Vertical", 2))
sketch6.addConstraint(Sketcher.Constraint("Horizontal", 3))
sketch6.addConstraint(Sketcher.Constraint("DistanceX", 1, 1, 1, 2, 0.3))
sketch6.addConstraint(Sketcher.Constraint("DistanceY", 0, 1, 0, 2, 5.5))
sketch6.addConstraint(Sketcher.Constraint("DistanceX", 0, 2, -1, 1, 15.0))
sketch6.addConstraint(Sketcher.Constraint("DistanceY", 0, 2, -1, 1, 0.4))
sketch6.setExpression("Constraints[8]", "Params.sketch6_width")
sketch6.setExpression("Constraints[9]", "Params.sketch6_height")
pad6 = doc.addObject("PartDesign::Pad", "Pad005")
body.addObject(pad6)
pad6.Profile = sketch6
pad6.setExpression("Length", "Params.pad6_length")
pad6.Reversed = True

doc.recompute()
